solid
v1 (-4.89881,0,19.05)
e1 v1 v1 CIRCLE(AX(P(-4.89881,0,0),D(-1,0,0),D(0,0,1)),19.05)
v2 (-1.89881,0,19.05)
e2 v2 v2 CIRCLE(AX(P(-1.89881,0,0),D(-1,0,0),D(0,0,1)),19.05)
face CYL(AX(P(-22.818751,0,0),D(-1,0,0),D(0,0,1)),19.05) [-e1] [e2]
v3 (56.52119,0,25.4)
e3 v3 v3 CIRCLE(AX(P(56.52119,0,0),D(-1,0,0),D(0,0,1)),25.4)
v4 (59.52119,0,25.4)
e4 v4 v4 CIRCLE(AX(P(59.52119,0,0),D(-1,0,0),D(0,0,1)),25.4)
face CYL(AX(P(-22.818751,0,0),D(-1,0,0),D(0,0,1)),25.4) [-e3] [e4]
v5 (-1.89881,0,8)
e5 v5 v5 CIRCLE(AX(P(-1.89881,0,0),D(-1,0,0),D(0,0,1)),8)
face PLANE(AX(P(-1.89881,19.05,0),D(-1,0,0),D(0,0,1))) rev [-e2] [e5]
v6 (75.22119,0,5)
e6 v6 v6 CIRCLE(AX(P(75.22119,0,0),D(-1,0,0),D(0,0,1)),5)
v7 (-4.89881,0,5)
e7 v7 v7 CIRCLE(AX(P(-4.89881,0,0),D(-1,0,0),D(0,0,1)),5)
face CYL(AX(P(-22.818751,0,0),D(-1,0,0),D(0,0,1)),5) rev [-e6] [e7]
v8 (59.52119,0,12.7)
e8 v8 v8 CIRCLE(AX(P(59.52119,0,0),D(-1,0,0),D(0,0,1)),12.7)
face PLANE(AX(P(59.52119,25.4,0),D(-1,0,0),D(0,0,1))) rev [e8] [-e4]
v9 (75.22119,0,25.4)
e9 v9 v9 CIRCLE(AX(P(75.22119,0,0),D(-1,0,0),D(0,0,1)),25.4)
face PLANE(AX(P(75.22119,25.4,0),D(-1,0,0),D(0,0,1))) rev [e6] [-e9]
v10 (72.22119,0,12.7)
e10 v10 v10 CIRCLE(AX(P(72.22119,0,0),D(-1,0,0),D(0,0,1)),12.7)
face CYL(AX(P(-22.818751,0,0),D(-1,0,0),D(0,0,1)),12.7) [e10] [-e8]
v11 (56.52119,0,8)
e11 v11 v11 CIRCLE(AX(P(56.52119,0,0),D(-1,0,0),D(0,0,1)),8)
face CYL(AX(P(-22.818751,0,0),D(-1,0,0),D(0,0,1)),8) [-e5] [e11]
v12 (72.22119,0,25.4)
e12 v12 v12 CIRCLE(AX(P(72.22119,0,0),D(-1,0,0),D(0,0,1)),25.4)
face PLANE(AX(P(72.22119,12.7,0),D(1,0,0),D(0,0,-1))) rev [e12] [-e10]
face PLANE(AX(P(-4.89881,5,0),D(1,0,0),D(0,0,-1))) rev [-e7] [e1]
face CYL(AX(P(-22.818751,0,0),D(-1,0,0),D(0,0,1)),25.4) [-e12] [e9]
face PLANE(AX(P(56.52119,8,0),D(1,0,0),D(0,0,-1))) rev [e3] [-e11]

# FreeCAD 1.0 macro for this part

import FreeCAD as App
import Part
import Sketcher

V = App.Vector

doc = App.newDocument("Part")
body = doc.addObject("PartDesign::Body", "Body")

sketch1 = body.newObject("Sketcher::SketchObject", "Sketch")
sketch1.AttachmentSupport = (doc.getObject("XY_Plane"), [""])
sketch1.MapMode = "FlatFace"
sketch1.addGeometry([
    Part.LineSegment(V(-4.9, 19.1, 0), V(-4.9, 5, 0)),
    Part.LineSegment(V(-4.9, 5, 0), V(75.2, 5, 0)),
    Part.LineSegment(V(75.2, 5, 0), V(75.2, 25.4, 0)),
    Part.LineSegment(V(75.2, 25.4, 0), V(72.2, 25.4, 0)),
    Part.LineSegment(V(72.2, 25.4, 0), V(72.2, 12.7, 0)),
    Part.LineSegment(V(72.2, 12.7, 0), V(59.5, 12.7, 0)),
    Part.LineSegment(V(59.5, 12.7, 0), V(59.5, 25.4, 0)),
    Part.LineSegment(V(59.5, 25.4, 0), V(56.5, 25.4, 0)),
    Part.LineSegment(V(56.5, 25.4, 0), V(56.5, 8, 0)),
    Part.LineSegment(V(56.5, 8, 0), V(-1.9, 8, 0)),
    Part.LineSegment(V(-1.9, 8, 0), V(-1.9, 19.1, 0)),
    Part.LineSegment(V(-1.9, 19.1, 0), V(-4.9, 19.1, 0)),
], False)
sketch1.addConstraint([
    Sketcher.Constraint("Coincident", 0, 2, 1, 1),
    Sketcher.Constraint("Coincident", 1, 2, 2, 1),
    Sketcher.Constraint("Coincident", 2, 2, 3, 1),
    Sketcher.Constraint("Coincident", 3, 2, 4, 1),
    Sketcher.Constraint("Coincident", 4, 2, 5, 1),
    Sketcher.Constraint("Coincident", 5, 2, 6, 1),
    Sketcher.Constraint("Coincident", 6, 2, 7, 1),
    Sketcher.Constraint("Coincident", 7, 2, 8, 1),
    Sketcher.Constraint("Coincident", 8, 2, 9, 1),
    Sketcher.Constraint("Coincident", 9, 2, 10, 1),
    Sketcher.Constraint("Coincident", 10, 2, 11, 1),
    Sketcher.Constraint("Coincident", 11, 2, 0, 1),
    Sketcher.Constraint("Vertical", 0),
    Sketcher.Constraint("Horizontal", 1),
    Sketcher.Constraint("Vertical", 2),
    Sketcher.Constraint("Horizontal", 3),
    Sketcher.Constraint("Vertical", 4),
    Sketcher.Constraint("Horizontal", 5),
    Sketcher.Constraint("Vertical", 6),
    Sketcher.Constraint("Horizontal", 7),
    Sketcher.Constraint("Vertical", 8),
    Sketcher.Constraint("Horizontal", 9),
    Sketcher.Constraint("Vertical", 10),
    Sketcher.Constraint("Horizontal", 11),
    Sketcher.Constraint("Horizontal", 3, 2, 6, 2),
    Sketcher.Constraint("Equal", 3, 7),
    Sketcher.Constraint("Equal", 7, 11),
    Sketcher.Constraint("Equal", 5, 4),
    Sketcher.Constraint("DistanceX", 3, 2, 3, 1, 3.0),
    Sketcher.Constraint("DistanceX", 5, 2, 5, 1, 12.7),
    Sketcher.Constraint("DistanceY", 2, 1, 2, 2, 20.4),
    Sketcher.Constraint("DistanceY", 8, 2, 8, 1, 17.4),
    Sketcher.Constraint("DistanceY", -1, 1, 0, 2, 5.0),
    Sketcher.Constraint("DistanceX", 1, 1, 1, 2, 80.12),
    Sketcher.Constraint("DistanceY", 0, 2, 0, 1, 14.05),
    Sketcher.Constraint("DistanceX", 0, 2, -1, 1, 4.89881),
])
revolution = body.newObject("PartDesign::Revolution", "Revolution")
revolution.Profile = sketch1
revolution.ReferenceAxis = (sketch1, ["H_Axis"])
revolution.Angle = 360

doc.recompute()
